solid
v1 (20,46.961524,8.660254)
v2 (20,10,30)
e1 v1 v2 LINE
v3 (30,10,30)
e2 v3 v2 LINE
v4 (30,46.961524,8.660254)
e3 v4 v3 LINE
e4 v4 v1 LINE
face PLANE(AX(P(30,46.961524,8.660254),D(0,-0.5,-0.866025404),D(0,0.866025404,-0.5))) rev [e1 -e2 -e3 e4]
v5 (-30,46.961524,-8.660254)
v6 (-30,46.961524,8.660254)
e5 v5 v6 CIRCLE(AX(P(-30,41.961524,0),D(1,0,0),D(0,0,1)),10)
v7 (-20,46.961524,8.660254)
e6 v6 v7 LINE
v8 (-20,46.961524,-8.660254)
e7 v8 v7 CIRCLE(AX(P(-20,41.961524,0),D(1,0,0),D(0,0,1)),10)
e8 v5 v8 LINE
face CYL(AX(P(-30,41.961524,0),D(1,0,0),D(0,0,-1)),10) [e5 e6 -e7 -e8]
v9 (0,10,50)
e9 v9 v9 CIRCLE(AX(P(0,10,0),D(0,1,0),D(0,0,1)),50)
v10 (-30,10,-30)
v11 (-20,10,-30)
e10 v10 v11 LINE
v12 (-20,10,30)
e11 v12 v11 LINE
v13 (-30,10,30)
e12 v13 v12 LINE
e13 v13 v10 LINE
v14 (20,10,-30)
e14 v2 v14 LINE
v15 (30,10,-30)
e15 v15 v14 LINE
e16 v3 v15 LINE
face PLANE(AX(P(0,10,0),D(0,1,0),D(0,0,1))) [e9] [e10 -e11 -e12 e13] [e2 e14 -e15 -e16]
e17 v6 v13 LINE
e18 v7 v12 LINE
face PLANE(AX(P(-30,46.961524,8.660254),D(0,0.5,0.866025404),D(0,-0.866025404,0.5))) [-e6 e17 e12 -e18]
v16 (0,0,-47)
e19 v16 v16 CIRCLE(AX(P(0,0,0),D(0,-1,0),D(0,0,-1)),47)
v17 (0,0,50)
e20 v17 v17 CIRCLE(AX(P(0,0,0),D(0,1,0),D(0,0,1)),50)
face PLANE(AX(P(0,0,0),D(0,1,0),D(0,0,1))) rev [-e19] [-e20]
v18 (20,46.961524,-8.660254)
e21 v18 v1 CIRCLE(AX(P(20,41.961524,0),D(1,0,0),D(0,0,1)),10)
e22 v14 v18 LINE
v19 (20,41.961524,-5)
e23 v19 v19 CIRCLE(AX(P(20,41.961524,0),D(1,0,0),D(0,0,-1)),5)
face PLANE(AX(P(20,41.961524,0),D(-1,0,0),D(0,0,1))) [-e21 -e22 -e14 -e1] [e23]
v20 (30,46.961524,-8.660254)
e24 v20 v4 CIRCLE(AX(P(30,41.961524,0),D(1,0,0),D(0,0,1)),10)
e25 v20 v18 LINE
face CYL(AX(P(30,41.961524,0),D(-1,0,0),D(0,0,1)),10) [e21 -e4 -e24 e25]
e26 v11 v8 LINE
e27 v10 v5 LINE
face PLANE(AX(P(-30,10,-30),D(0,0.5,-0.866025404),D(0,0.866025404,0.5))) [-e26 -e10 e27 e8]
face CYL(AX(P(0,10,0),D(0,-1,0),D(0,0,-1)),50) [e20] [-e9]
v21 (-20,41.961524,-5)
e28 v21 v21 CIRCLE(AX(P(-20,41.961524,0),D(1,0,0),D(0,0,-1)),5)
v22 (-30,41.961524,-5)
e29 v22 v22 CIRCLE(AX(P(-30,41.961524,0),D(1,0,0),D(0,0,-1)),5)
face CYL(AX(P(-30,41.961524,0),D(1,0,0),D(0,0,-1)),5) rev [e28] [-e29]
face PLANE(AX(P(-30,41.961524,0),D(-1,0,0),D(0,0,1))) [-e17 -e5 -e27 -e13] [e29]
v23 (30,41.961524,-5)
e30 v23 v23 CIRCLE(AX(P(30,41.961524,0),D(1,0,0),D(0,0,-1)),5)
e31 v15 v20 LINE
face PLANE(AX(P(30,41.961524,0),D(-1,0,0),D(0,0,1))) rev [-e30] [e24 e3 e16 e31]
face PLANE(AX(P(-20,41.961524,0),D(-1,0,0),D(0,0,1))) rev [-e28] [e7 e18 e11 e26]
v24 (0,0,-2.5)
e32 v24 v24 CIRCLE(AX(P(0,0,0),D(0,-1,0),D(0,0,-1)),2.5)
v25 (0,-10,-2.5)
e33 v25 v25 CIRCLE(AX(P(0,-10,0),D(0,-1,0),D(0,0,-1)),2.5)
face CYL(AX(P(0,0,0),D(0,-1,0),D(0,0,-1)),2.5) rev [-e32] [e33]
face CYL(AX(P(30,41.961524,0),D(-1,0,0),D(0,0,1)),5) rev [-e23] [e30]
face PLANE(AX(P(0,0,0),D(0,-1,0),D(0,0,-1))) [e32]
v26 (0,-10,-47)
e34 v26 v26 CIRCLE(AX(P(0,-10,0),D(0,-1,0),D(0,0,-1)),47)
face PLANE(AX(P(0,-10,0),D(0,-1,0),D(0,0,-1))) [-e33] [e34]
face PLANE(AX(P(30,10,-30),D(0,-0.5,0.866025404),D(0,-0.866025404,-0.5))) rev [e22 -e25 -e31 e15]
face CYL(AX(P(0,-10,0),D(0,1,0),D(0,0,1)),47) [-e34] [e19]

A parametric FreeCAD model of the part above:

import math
import FreeCAD as App
import Part
import Sketcher
from FreeCAD import Vector
Q = App.Units.Quantity

doc = App.newDocument("Part")
body = doc.addObject("PartDesign::Body", "Body")

# Sketch on XZ plane
sketch1 = body.newObject("Sketcher::SketchObject", "Sketch")
sketch1.AttachmentSupport = (doc.getObject("XZ_Plane"), [""])
sketch1.MapMode = "FlatFace"
sketch1.addGeometry(Part.Circle(Vector(0, 0, 0), Vector(0, 0, 1), 50), False)
sketch1.addConstraint([
    Sketcher.Constraint("Coincident", 0, 3, -1, 1),
    Sketcher.Constraint("Diameter", 0, Q("100 mm")),
])
pad1 = body.newObject("PartDesign::Pad", "Pad")
pad1.Profile = sketch1
pad1.Length = 10
pad1.Reversed = True

# Sketch on YZ plane
sketch2 = body.newObject("Sketcher::SketchObject", "Sketch001")
sketch2.AttachmentSupport = (doc.getObject("YZ_Plane"), [""])
sketch2.MapMode = "FlatFace"
sketch2.AttachmentOffset = App.Placement(Vector(0, 0, 20), App.Rotation())
sketch2.addGeometry([
    Part.LineSegment(Vector(10, -30, 0), Vector(47, -9, 0)),  # 0
    Part.ArcOfCircle(Part.Circle(Vector(42, 0, 0), Vector(0, 0, 1), 10), math.radians(-60), math.radians(60)),  # 1
    Part.LineSegment(Vector(47, 9, 0), Vector(10, 30, 0)),  # 2
    Part.LineSegment(Vector(10, 30, 0), Vector(10, -30, 0)),  # 3
    Part.Circle(Vector(42, 0, 0), Vector(0, 0, 1), 5),  # 4
], False)
sketch2.addConstraint([
    Sketcher.Constraint("Tangent", 0, 2, 1, 1),
    Sketcher.Constraint("Tangent", 1, 2, 2, 1),
    Sketcher.Constraint("Coincident", 2, 2, 3, 1),
    Sketcher.Constraint("Coincident", 3, 2, 0, 1),
    Sketcher.Constraint("Vertical", 3),
    Sketcher.Constraint("Coincident", 4, 3, 1, 3),
    Sketcher.Constraint("Symmetric", 0, 2, 1, 2, -1),
    Sketcher.Constraint("Diameter", 4, Q("10 mm")),
    Sketcher.Constraint("Radius", 1, Q("10 mm")),
    Sketcher.Constraint("DistanceY", 3, 2, 3, 1, Q("60 mm")),
    Sketcher.Constraint("Angle", 0, Q("30 deg")),
    Sketcher.Constraint("DistanceX", -1, 1, 2, 2, Q("10 mm")),
])
pad2 = body.newObject("PartDesign::Pad", "Pad001")
pad2.Profile = sketch2
pad2.Length = 10

# Sketch on YZ plane
sketch3 = body.newObject("Sketcher::SketchObject", "Sketch002")
sketch3.AttachmentSupport = (doc.getObject("YZ_Plane"), [""])
sketch3.MapMode = "FlatFace"
sketch3.AttachmentOffset = App.Placement(Vector(0, 0, -20), App.Rotation())
sketch3.addGeometry([
    Part.LineSegment(Vector(10, -30, 0), Vector(47, -9, 0)),  # 0
    Part.ArcOfCircle(Part.Circle(Vector(42, 0, 0), Vector(0, 0, 1), 10), math.radians(-60), math.radians(60)),  # 1
    Part.LineSegment(Vector(47, 9, 0), Vector(10, 30, 0)),  # 2
    Part.LineSegment(Vector(10, 30, 0), Vector(10, -30, 0)),  # 3
    Part.Circle(Vector(42, 0, 0), Vector(0, 0, 1), 5),  # 4
], False)
sketch3.addConstraint([
    Sketcher.Constraint("Tangent", 0, 2, 1, 1),
    Sketcher.Constraint("Tangent", 1, 2, 2, 1),
    Sketcher.Constraint("Coincident", 2, 2, 3, 1),
    Sketcher.Constraint("Coincident", 3, 2, 0, 1),
    Sketcher.Constraint("Vertical", 3),
    Sketcher.Constraint("Coincident", 4, 3, 1, 3),
    Sketcher.Constraint("Symmetric", 0, 2, 1, 2, -1),
    Sketcher.Constraint("Diameter", 4, Q("10 mm")),
    Sketcher.Constraint("Radius", 1, Q("10 mm")),
    Sketcher.Constraint("DistanceY", 3, 2, 3, 1, Q("60 mm")),
    Sketcher.Constraint("Angle", 0, Q("30 deg")),
    Sketcher.Constraint("DistanceX", -1, 1, 2, 2, Q("10 mm")),
])
pad3 = body.newObject("PartDesign::Pad", "Pad002")
pad3.Profile = sketch3
pad3.Length = 10
pad3.Reversed = True

# Sketch on XZ plane
sketch4 = body.newObject("Sketcher::SketchObject", "Sketch003")
sketch4.AttachmentSupport = (doc.getObject("XZ_Plane"), [""])
sketch4.MapMode = "FlatFace"
sketch4.addGeometry(Part.Circle(Vector(0, 0, 0), Vector(0, 0, 1), 47), False)
sketch4.addConstraint([
    Sketcher.Constraint("Coincident", 0, 3, -1, 1),
    Sketcher.Constraint("Diameter", 0, Q("94 mm")),
])
pad4 = body.newObject("PartDesign::Pad", "Pad003")
pad4.Profile = sketch4
pad4.Length = 10

# Sketch on XZ plane
sketch5 = body.newObject("Sketcher::SketchObject", "Sketch004")
sketch5.AttachmentSupport = (doc.getObject("XZ_Plane"), [""])
sketch5.MapMode = "FlatFace"
sketch5.AttachmentOffset = App.Placement(Vector(0, 0, 10), App.Rotation())
sketch5.addGeometry(Part.Circle(Vector(0, 0, 0), Vector(0, 0, 1), 2.5), False)
sketch5.addConstraint([
    Sketcher.Constraint("Coincident", 0, 3, -1, 1),
    Sketcher.Constraint("Diameter", 0, Q("5 mm")),
])
pocket1 = body.newObject("PartDesign::Pocket", "Pocket")
pocket1.Profile = sketch5
pocket1.Length = 10

doc.recompute()
